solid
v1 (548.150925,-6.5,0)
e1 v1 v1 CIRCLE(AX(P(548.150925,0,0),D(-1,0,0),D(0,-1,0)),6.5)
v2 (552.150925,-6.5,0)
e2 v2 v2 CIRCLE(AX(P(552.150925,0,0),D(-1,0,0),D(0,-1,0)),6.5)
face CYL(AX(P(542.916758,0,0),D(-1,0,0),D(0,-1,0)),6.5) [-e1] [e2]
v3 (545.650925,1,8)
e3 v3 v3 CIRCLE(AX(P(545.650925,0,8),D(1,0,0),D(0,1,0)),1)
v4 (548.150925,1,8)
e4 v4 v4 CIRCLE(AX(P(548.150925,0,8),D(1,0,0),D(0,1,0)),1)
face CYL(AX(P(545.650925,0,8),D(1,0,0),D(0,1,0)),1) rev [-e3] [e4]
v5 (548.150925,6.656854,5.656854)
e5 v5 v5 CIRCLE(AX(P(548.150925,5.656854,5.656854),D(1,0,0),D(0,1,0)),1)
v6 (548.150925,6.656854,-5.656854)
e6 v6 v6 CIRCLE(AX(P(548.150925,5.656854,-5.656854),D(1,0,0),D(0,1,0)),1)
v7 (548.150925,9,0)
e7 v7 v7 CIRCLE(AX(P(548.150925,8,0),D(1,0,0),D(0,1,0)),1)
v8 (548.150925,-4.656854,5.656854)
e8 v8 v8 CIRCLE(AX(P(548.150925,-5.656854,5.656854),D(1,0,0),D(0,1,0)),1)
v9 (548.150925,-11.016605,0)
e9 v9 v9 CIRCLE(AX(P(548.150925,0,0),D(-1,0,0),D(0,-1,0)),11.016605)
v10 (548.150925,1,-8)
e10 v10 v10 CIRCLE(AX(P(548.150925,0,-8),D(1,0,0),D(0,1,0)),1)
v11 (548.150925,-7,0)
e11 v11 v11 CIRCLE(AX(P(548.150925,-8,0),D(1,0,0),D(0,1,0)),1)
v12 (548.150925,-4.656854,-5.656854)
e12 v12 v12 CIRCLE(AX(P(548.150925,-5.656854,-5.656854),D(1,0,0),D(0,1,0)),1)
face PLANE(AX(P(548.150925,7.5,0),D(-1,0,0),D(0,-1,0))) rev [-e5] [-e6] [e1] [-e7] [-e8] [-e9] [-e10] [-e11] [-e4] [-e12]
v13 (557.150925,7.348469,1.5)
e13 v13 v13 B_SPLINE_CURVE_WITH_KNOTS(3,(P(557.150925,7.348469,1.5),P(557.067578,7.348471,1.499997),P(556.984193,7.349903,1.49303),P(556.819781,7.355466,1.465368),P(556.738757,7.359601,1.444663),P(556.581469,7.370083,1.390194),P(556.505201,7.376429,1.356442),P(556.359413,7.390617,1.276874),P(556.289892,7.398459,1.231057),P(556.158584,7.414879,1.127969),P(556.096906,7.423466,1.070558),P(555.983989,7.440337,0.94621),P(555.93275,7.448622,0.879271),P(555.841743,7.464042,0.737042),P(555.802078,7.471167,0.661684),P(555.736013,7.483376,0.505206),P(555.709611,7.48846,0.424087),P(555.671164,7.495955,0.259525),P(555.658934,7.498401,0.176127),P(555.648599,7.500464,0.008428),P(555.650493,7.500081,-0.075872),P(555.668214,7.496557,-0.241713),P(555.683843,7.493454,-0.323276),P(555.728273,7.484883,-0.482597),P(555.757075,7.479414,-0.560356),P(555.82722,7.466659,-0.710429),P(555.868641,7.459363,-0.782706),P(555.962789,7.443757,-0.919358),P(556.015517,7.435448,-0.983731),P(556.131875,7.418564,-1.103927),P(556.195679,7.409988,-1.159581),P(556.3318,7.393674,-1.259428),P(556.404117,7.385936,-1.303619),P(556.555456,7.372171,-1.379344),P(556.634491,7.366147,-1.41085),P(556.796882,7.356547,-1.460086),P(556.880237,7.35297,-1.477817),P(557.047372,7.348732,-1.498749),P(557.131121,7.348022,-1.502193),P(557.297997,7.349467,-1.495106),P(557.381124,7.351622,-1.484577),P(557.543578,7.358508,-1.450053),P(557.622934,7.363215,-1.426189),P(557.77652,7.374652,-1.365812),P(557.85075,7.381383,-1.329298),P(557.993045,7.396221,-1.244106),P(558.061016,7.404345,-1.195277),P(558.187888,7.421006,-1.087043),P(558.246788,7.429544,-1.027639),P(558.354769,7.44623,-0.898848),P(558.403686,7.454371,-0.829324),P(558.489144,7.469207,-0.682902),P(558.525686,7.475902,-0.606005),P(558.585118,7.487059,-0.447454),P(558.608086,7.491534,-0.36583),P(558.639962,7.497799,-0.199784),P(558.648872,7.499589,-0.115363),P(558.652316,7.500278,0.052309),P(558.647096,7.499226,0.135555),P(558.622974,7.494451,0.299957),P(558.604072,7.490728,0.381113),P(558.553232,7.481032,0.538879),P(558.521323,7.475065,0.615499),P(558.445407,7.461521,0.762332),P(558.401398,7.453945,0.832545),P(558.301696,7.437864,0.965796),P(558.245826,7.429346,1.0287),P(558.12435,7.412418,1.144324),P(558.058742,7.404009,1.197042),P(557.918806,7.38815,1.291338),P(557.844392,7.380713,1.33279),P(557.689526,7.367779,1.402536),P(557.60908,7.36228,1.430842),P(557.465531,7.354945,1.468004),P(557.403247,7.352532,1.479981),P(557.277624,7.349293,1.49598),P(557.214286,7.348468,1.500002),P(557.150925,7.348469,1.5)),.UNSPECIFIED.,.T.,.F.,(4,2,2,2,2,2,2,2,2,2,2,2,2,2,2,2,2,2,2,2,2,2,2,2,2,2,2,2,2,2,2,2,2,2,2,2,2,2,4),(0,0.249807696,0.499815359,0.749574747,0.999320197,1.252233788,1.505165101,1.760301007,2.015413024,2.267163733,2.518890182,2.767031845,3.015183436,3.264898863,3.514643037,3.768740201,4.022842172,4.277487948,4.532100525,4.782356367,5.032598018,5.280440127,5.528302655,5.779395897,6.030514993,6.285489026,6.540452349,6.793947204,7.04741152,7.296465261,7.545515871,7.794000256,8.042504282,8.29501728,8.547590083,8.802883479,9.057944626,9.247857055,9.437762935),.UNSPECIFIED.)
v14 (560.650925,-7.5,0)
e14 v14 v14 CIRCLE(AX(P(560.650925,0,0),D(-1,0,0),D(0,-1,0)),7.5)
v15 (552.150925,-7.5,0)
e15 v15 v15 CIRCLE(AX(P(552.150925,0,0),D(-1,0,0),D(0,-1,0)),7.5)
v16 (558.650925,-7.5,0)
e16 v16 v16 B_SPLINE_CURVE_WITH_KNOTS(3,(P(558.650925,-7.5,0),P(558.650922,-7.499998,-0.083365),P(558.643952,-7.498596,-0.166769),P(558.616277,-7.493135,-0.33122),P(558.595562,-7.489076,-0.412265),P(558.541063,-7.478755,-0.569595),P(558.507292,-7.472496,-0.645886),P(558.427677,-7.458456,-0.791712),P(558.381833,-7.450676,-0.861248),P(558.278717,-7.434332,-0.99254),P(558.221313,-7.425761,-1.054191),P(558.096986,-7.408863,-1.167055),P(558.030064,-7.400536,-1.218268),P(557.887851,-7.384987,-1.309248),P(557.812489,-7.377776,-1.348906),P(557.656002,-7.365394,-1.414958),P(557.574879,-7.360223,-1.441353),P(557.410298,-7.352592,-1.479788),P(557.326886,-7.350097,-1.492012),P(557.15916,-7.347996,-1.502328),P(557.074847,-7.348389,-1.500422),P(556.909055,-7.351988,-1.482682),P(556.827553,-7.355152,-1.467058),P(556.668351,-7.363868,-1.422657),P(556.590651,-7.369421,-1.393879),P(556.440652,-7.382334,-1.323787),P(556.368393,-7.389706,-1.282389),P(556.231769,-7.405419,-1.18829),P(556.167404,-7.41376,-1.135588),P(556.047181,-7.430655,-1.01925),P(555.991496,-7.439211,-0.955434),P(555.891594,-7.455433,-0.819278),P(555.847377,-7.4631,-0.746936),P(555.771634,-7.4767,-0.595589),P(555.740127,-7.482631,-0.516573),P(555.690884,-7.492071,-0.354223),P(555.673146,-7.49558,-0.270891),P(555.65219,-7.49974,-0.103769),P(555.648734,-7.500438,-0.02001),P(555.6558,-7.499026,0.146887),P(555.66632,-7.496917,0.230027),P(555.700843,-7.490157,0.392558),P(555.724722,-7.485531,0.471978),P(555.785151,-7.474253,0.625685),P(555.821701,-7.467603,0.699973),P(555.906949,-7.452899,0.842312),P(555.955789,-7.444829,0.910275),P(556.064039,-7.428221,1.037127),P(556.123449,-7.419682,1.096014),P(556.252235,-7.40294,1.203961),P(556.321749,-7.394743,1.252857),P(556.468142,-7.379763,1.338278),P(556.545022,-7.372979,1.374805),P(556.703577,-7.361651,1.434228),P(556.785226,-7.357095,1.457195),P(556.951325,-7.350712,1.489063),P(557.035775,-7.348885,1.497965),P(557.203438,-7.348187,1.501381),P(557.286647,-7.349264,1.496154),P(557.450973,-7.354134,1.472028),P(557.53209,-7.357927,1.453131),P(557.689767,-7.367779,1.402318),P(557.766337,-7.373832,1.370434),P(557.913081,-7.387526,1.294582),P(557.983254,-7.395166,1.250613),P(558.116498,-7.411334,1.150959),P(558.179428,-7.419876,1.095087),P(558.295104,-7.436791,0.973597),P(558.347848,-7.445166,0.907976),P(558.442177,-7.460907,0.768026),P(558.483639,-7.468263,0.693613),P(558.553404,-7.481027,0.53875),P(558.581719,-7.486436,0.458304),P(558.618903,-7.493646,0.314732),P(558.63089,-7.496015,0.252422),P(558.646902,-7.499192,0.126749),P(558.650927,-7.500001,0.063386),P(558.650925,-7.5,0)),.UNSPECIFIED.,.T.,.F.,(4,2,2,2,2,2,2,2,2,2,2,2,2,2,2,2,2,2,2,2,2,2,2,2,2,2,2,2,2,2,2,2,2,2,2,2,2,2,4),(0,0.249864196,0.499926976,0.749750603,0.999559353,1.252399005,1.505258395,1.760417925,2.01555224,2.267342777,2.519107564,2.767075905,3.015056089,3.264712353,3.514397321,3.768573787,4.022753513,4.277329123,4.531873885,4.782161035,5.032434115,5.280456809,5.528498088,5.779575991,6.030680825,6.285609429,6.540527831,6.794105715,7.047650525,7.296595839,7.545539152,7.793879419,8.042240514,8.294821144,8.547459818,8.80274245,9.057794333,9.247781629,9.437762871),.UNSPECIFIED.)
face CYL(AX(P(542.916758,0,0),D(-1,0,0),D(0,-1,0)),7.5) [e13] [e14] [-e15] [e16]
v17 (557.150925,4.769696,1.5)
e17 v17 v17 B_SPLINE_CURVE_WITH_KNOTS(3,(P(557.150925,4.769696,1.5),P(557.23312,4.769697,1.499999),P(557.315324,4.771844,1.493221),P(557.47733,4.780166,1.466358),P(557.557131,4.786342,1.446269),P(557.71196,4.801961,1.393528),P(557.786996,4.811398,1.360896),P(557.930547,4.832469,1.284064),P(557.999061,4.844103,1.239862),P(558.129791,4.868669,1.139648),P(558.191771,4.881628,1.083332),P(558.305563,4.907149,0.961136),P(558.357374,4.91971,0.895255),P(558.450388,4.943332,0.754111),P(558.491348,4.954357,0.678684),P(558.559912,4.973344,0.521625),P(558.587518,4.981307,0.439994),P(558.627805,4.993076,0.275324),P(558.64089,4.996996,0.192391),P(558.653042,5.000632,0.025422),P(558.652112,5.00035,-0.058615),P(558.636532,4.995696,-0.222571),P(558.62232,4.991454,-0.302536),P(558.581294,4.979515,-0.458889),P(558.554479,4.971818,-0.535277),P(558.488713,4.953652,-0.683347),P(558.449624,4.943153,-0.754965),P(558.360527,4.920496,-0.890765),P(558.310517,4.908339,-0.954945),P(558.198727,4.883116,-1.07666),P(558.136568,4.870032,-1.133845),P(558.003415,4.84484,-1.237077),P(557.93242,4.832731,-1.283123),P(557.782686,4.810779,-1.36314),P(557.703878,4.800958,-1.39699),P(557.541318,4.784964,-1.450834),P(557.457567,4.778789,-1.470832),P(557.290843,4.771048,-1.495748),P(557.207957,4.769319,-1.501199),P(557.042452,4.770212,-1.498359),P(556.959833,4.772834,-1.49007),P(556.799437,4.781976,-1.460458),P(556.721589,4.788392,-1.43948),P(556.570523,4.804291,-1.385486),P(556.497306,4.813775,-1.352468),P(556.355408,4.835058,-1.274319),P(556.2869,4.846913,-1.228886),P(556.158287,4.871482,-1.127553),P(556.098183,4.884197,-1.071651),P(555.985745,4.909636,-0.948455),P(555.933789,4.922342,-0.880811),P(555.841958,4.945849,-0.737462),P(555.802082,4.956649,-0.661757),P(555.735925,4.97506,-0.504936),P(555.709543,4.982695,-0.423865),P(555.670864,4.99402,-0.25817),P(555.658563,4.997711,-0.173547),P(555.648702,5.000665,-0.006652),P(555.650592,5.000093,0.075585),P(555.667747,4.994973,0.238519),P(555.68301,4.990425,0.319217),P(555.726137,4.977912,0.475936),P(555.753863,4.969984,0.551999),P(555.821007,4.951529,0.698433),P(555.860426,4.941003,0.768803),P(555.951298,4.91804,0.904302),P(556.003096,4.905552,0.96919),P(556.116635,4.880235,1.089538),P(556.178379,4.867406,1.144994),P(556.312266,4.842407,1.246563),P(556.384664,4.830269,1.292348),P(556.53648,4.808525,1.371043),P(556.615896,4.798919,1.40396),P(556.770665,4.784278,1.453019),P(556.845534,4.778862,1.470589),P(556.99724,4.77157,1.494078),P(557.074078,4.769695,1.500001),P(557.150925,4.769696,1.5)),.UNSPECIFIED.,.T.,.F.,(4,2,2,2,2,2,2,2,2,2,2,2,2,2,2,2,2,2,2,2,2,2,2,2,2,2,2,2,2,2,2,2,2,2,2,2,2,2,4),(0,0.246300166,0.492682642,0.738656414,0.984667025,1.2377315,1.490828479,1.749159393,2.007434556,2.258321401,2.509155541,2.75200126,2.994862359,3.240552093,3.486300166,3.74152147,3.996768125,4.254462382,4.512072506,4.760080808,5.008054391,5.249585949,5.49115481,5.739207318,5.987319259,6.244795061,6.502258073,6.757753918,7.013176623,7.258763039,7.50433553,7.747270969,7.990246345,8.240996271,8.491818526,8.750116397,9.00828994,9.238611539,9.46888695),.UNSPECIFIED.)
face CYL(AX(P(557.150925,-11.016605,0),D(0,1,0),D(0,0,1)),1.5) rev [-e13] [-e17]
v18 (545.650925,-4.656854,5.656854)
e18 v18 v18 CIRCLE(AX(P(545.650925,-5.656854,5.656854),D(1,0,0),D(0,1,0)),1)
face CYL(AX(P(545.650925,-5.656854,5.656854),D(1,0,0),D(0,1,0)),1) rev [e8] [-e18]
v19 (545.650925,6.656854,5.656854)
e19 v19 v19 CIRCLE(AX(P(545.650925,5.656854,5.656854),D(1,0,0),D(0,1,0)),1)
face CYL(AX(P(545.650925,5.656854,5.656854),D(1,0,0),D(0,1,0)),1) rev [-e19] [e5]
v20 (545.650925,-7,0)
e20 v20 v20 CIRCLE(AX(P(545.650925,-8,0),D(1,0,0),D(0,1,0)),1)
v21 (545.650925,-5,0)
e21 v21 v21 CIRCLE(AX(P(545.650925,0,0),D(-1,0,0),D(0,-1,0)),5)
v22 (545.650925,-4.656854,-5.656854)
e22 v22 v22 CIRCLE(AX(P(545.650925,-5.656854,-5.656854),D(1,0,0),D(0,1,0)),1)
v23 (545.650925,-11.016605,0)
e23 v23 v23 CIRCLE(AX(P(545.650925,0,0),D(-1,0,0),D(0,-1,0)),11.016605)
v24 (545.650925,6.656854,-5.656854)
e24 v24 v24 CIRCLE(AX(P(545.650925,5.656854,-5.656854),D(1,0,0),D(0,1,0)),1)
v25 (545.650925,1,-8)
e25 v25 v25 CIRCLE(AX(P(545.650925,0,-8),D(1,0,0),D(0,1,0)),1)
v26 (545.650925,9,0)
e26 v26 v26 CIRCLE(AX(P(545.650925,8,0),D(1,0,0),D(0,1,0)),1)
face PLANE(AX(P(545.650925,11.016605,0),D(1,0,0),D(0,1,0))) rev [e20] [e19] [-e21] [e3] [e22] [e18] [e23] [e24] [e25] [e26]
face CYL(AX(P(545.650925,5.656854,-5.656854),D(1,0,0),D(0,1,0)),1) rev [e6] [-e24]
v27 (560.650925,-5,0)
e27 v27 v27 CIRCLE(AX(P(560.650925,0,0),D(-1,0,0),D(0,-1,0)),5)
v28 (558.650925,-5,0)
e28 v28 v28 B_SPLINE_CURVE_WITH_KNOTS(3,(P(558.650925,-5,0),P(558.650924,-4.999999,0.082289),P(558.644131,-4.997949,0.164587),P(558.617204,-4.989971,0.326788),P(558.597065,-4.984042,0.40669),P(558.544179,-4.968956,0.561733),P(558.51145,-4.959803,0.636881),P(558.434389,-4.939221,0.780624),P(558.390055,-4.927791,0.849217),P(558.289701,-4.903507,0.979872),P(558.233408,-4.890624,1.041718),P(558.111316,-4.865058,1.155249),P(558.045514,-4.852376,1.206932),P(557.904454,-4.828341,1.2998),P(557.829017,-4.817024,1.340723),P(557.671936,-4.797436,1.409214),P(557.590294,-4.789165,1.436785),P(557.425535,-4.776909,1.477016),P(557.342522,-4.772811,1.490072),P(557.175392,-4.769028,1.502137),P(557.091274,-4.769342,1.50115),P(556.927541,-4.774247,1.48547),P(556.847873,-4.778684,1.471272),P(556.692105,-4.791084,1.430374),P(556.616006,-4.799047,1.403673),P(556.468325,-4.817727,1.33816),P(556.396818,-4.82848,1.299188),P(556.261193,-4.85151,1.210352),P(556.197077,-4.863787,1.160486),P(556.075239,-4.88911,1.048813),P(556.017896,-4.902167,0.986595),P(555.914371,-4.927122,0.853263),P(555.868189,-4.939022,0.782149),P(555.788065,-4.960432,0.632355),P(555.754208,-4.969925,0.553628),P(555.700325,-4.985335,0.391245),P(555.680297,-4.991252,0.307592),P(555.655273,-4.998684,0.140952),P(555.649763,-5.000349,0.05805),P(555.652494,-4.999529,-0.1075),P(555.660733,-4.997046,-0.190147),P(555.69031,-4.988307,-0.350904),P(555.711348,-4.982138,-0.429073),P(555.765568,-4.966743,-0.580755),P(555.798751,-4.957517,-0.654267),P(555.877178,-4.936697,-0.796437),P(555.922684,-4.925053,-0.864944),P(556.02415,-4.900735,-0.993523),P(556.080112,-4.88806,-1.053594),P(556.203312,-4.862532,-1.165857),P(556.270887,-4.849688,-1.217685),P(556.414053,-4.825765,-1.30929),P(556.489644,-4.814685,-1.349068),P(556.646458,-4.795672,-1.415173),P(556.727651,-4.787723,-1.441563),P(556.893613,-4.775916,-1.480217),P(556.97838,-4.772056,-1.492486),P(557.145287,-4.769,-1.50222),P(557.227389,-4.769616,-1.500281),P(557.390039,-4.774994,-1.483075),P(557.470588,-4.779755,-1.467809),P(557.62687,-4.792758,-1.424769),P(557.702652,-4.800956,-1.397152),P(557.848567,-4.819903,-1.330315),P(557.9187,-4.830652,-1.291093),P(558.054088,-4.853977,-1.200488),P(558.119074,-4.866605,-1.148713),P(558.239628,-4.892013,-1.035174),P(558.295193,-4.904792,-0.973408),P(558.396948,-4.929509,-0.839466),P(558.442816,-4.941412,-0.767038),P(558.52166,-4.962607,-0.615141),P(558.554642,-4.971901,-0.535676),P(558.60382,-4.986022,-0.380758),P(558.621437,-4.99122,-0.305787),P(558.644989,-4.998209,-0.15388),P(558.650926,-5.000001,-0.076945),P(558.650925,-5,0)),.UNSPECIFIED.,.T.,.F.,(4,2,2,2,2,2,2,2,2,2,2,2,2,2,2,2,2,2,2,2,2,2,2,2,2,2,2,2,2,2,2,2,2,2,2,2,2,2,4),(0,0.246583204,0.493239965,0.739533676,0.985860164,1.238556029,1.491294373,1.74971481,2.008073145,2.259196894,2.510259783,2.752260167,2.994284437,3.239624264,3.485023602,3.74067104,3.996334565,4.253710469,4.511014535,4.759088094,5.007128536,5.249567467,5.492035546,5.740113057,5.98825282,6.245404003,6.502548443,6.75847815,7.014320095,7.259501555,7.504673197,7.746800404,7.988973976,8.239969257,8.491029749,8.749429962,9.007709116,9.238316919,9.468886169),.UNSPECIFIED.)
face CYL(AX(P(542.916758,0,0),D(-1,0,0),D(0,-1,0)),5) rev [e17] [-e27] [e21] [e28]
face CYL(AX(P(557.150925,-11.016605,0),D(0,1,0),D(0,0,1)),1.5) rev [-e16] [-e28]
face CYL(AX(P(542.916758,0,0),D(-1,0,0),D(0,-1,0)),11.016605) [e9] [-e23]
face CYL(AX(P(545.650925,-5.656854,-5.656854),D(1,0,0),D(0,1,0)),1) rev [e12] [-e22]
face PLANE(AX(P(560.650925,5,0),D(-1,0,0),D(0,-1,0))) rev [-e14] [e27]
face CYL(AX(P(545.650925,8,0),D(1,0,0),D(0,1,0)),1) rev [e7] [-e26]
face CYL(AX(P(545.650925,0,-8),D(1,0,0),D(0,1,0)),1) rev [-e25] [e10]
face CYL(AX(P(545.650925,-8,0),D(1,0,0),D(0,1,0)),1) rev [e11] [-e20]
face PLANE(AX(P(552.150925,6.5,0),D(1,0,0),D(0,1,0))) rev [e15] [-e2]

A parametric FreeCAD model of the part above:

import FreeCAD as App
import Part
import Sketcher

V = App.Vector
Q = App.Units.Quantity


def add_polygon(sketch, points):
    """Adds a closed chain of lines whose ends are joined by coincident constraints."""
    first, n = sketch.GeometryCount, len(points)
    for a, b in zip(points, points[1:] + points[:1]):
        sketch.addGeometry(Part.LineSegment(App.Vector(*a, 0), App.Vector(*b, 0)), False)
    for i in range(n):
        sketch.addConstraint(Sketcher.Constraint("Coincident", first + i, 2, first + (i + 1) % n, 1))

doc = App.newDocument("Part")
body = doc.addObject("PartDesign::Body", "Body")

# Sketch on XY plane
sketch1 = body.newObject("Sketcher::SketchObject", "Sketch")
sketch1.AttachmentSupport = (doc.getObject("XY_Plane"), [""])
sketch1.MapMode = "FlatFace"
add_polygon(sketch1, [(560.7, 5), (560.7, 7.5), (552.2, 7.5), (552.2, 6.5), (548.2, 6.5), (548.2, 11), (545.7, 11), (545.7, 5)])  # lines 0-7
sketch1.addConstraint([
    Sketcher.Constraint("Vertical", 0),
    Sketcher.Constraint("Horizontal", 1),
    Sketcher.Constraint("Vertical", 2),
    Sketcher.Constraint("Horizontal", 3),
    Sketcher.Constraint("Vertical", 4),
    Sketcher.Constraint("Horizontal", 5),
    Sketcher.Constraint("Vertical", 6),
    Sketcher.Constraint("Horizontal", 7),
    Sketcher.Constraint("Equal", 5, 0),
    Sketcher.Constraint("DistanceX", 3, 2, 3, 1, Q("4 mm")),
    Sketcher.Constraint("DistanceX", 7, 1, 7, 2, Q("15 mm")),
    Sketcher.Constraint("DistanceY", 2, 2, 2, 1, Q("1 mm")),
    Sketcher.Constraint("DistanceX", 1, 2, 1, 1, Q("8.5 mm")),
    Sketcher.Constraint("DistanceY", -1, 1, 6, 2, Q("5 mm")),
    Sketcher.Constraint("DistanceY", 4, 1, 4, 2, Q("4.516605 mm")),
    Sketcher.Constraint("DistanceX", -1, 1, 0, 2, Q("560.650925 mm")),
])
revolution = body.newObject("PartDesign::Revolution", "Revolution")
revolution.Profile = sketch1
revolution.ReferenceAxis = (sketch1, ["H_Axis"])
revolution.Angle = 360

# Sketch on XZ plane
sketch2 = body.newObject("Sketcher::SketchObject", "Sketch001")
sketch2.AttachmentSupport = (doc.getObject("XZ_Plane"), [""])
sketch2.MapMode = "FlatFace"
sketch2.addGeometry(Part.Circle(V(557.2, 0, 0), V(0, 0, 1), 1.5), False)
sketch2.addConstraint([
    Sketcher.Constraint("PointOnObject", 0, 3, -1),
    Sketcher.Constraint("Diameter", 0, Q("3 mm")),
    Sketcher.Constraint("DistanceX", -1, 1, 0, 3, Q("557.150925 mm")),
])
pocket1 = body.newObject("PartDesign::Pocket", "Pocket")
pocket1.Profile = sketch2
pocket1.Type = "ThroughAll"
pocket1.Midplane = True

# Sketch on YZ plane
sketch3 = body.newObject("Sketcher::SketchObject", "Sketch002")
sketch3.AttachmentSupport = (doc.getObject("YZ_Plane"), [""])
sketch3.MapMode = "FlatFace"
sketch3.AttachmentOffset = App.Placement(V(0, 0, 548.150925), App.Rotation())
sketch3.addGeometry([
    Part.Circle(V(8, 0, 0), V(0, 0, 1), 1),  # 0
    Part.Circle(V(5.7, -5.7, 0), V(0, 0, 1), 1),  # 1
    Part.Circle(V(0, -8, 0), V(0, 0, 1), 1),  # 2
    Part.Circle(V(-5.7, -5.7, 0), V(0, 0, 1), 1),  # 3
    Part.Circle(V(-8, 0, 0), V(0, 0, 1), 1),  # 4
    Part.Circle(V(-5.7, 5.7, 0), V(0, 0, 1), 1),  # 5
    Part.Circle(V(0, 8, 0), V(0, 0, 1), 1),  # 6
    Part.Circle(V(5.7, 5.7, 0), V(0, 0, 1), 1),  # 7
], False)
sketch3.addConstraint([
    Sketcher.Constraint("Equal", 0, 1),
    Sketcher.Constraint("Equal", 1, 2),
    Sketcher.Constraint("Equal", 2, 3),
    Sketcher.Constraint("Equal", 3, 4),
    Sketcher.Constraint("Equal", 4, 5),
    Sketcher.Constraint("Equal", 5, 6),
    Sketcher.Constraint("Equal", 6, 7),
    Sketcher.Constraint("Symmetric", 0, 3, 4, 3, -1, 1),
    Sketcher.Constraint("Symmetric", 1, 3, 5, 3, -1, 1),
    Sketcher.Constraint("Symmetric", 2, 3, 6, 3, -1, 1),
    Sketcher.Constraint("Symmetric", 3, 3, 7, 3, -1, 1),
    Sketcher.Constraint("Symmetric", 1, 3, 3, 3, -2),
    Sketcher.Constraint("PointOnObject", 0, 3, -1),
    Sketcher.Constraint("PointOnObject", 2, 3, -2),
    Sketcher.Constraint("Diameter", 0, Q("2 mm")),
    Sketcher.Constraint("DistanceX", -1, 1, 0, 3, Q("8 mm")),
    Sketcher.Constraint("DistanceY", 2, 3, -1, 1, Q("8 mm")),
    Sketcher.Constraint("DistanceX", 3, 3, 1, 3, Q("11.313708 mm")),
    Sketcher.Constraint("DistanceY", 3, 3, 5, 3, Q("11.313708 mm")),
])
pocket2 = body.newObject("PartDesign::Pocket", "Pocket001")
pocket2.Profile = sketch3
pocket2.Type = "ThroughAll"

doc.recompute()
